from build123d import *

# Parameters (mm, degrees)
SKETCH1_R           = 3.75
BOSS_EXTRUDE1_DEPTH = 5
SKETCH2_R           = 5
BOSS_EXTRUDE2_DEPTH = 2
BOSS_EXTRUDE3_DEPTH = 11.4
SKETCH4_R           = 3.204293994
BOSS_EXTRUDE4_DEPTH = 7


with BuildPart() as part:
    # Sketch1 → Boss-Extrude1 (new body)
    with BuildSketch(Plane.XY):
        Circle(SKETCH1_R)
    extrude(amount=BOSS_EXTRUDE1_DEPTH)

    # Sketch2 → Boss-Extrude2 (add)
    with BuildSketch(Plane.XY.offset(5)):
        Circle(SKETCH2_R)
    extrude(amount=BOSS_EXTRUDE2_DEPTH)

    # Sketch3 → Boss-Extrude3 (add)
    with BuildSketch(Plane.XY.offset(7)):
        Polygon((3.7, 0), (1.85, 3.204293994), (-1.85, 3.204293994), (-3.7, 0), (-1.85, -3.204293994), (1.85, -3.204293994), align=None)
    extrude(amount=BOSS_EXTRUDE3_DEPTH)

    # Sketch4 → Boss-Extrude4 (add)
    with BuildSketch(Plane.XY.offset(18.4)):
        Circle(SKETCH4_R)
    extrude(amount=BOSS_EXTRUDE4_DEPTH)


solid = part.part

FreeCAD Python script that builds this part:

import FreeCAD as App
import Part
import Sketcher
Q = App.Units.Quantity


def add_polygon(sketch, points):
    """Adds a closed chain of lines whose ends are joined by coincident constraints."""
    first, n = sketch.GeometryCount, len(points)
    for a, b in zip(points, points[1:] + points[:1]):
        sketch.addGeometry(Part.LineSegment(App.Vector(*a, 0), App.Vector(*b, 0)), False)
    for i in range(n):
        sketch.addConstraint(Sketcher.Constraint("Coincident", first + i, 2, first + (i + 1) % n, 1))

doc = App.newDocument("Part")
body = doc.addObject("PartDesign::Body", "Body")

# Sketch on XY plane
sketch1 = body.newObject("Sketcher::SketchObject", "Sketch")
sketch1.AttachmentSupport = (doc.getObject("XY_Plane"), [""])
sketch1.MapMode = "FlatFace"
sketch1.addGeometry(Part.Circle(App.Vector(0, 0, 0), App.Vector(0, 0, 1), 3.8), False)
sketch1.addConstraint([
    Sketcher.Constraint("Coincident", 0, 3, -1, 1),
    Sketcher.Constraint("Diameter", 0, Q("7.5 mm")),
])
pad1 = body.newObject("PartDesign::Pad", "Pad")
pad1.Profile = sketch1
pad1.Length = 5

# Sketch on XY plane
sketch2 = body.newObject("Sketcher::SketchObject", "Sketch001")
sketch2.AttachmentSupport = (doc.getObject("XY_Plane"), [""])
sketch2.MapMode = "FlatFace"
sketch2.AttachmentOffset = App.Placement(App.Vector(0, 0, 5), App.Rotation())
sketch2.addGeometry(Part.Circle(App.Vector(0, 0, 0), App.Vector(0, 0, 1), 5), False)
sketch2.addConstraint([
    Sketcher.Constraint("Coincident", 0, 3, -1, 1),
    Sketcher.Constraint("Diameter", 0, Q("10 mm")),
])
pad2 = body.newObject("PartDesign::Pad", "Pad001")
pad2.Profile = sketch2
pad2.Length = 2

# Sketch on XY plane
sketch3 = body.newObject("Sketcher::SketchObject", "Sketch002")
sketch3.AttachmentSupport = (doc.getObject("XY_Plane"), [""])
sketch3.MapMode = "FlatFace"
sketch3.AttachmentOffset = App.Placement(App.Vector(0, 0, 7), App.Rotation())
add_polygon(sketch3, [(3.7, 0), (1.9, 3.2), (-1.9, 3.2), (-3.7, 0), (-1.9, -3.2), (1.9, -3.2)])  # lines 0-5
sketch3.addConstraint([
    Sketcher.Constraint("Horizontal", 1),
    Sketcher.Constraint("Horizontal", 4),
    Sketcher.Constraint("Symmetric", 0, 2, 3, 2, -1, 1),
    Sketcher.Constraint("Symmetric", 2, 2, 5, 2, -1, 1),
    Sketcher.Constraint("PointOnObject", 2, 2, -1),
    Sketcher.Constraint("Parallel", 2, 5),
    Sketcher.Constraint("Vertical", 1, 2, 3, 2),
    Sketcher.Constraint("Angle", 0, Q("120 deg")),
    Sketcher.Constraint("DistanceX", 1, 2, 1, 1, Q("3.7 mm")),
    Sketcher.Constraint("Distance", 0, Q("3.7 mm")),
])
pad3 = body.newObject("PartDesign::Pad", "Pad002")
pad3.Profile = sketch3
pad3.Length = 11.4

# Sketch on XY plane
sketch4 = body.newObject("Sketcher::SketchObject", "Sketch003")
sketch4.AttachmentSupport = (doc.getObject("XY_Plane"), [""])
sketch4.MapMode = "FlatFace"
sketch4.AttachmentOffset = App.Placement(App.Vector(0, 0, 18.4), App.Rotation())
sketch4.addGeometry(Part.Circle(App.Vector(0, 0, 0), App.Vector(0, 0, 1), 3.2), False)
sketch4.addConstraint([
    Sketcher.Constraint("Coincident", 0, 3, -1, 1),
    Sketcher.Constraint("Diameter", 0, Q("6.408588 mm")),
])
pad4 = body.newObject("PartDesign::Pad", "Pad003")
pad4.Profile = sketch4
pad4.Length = 7

doc.recompute()
